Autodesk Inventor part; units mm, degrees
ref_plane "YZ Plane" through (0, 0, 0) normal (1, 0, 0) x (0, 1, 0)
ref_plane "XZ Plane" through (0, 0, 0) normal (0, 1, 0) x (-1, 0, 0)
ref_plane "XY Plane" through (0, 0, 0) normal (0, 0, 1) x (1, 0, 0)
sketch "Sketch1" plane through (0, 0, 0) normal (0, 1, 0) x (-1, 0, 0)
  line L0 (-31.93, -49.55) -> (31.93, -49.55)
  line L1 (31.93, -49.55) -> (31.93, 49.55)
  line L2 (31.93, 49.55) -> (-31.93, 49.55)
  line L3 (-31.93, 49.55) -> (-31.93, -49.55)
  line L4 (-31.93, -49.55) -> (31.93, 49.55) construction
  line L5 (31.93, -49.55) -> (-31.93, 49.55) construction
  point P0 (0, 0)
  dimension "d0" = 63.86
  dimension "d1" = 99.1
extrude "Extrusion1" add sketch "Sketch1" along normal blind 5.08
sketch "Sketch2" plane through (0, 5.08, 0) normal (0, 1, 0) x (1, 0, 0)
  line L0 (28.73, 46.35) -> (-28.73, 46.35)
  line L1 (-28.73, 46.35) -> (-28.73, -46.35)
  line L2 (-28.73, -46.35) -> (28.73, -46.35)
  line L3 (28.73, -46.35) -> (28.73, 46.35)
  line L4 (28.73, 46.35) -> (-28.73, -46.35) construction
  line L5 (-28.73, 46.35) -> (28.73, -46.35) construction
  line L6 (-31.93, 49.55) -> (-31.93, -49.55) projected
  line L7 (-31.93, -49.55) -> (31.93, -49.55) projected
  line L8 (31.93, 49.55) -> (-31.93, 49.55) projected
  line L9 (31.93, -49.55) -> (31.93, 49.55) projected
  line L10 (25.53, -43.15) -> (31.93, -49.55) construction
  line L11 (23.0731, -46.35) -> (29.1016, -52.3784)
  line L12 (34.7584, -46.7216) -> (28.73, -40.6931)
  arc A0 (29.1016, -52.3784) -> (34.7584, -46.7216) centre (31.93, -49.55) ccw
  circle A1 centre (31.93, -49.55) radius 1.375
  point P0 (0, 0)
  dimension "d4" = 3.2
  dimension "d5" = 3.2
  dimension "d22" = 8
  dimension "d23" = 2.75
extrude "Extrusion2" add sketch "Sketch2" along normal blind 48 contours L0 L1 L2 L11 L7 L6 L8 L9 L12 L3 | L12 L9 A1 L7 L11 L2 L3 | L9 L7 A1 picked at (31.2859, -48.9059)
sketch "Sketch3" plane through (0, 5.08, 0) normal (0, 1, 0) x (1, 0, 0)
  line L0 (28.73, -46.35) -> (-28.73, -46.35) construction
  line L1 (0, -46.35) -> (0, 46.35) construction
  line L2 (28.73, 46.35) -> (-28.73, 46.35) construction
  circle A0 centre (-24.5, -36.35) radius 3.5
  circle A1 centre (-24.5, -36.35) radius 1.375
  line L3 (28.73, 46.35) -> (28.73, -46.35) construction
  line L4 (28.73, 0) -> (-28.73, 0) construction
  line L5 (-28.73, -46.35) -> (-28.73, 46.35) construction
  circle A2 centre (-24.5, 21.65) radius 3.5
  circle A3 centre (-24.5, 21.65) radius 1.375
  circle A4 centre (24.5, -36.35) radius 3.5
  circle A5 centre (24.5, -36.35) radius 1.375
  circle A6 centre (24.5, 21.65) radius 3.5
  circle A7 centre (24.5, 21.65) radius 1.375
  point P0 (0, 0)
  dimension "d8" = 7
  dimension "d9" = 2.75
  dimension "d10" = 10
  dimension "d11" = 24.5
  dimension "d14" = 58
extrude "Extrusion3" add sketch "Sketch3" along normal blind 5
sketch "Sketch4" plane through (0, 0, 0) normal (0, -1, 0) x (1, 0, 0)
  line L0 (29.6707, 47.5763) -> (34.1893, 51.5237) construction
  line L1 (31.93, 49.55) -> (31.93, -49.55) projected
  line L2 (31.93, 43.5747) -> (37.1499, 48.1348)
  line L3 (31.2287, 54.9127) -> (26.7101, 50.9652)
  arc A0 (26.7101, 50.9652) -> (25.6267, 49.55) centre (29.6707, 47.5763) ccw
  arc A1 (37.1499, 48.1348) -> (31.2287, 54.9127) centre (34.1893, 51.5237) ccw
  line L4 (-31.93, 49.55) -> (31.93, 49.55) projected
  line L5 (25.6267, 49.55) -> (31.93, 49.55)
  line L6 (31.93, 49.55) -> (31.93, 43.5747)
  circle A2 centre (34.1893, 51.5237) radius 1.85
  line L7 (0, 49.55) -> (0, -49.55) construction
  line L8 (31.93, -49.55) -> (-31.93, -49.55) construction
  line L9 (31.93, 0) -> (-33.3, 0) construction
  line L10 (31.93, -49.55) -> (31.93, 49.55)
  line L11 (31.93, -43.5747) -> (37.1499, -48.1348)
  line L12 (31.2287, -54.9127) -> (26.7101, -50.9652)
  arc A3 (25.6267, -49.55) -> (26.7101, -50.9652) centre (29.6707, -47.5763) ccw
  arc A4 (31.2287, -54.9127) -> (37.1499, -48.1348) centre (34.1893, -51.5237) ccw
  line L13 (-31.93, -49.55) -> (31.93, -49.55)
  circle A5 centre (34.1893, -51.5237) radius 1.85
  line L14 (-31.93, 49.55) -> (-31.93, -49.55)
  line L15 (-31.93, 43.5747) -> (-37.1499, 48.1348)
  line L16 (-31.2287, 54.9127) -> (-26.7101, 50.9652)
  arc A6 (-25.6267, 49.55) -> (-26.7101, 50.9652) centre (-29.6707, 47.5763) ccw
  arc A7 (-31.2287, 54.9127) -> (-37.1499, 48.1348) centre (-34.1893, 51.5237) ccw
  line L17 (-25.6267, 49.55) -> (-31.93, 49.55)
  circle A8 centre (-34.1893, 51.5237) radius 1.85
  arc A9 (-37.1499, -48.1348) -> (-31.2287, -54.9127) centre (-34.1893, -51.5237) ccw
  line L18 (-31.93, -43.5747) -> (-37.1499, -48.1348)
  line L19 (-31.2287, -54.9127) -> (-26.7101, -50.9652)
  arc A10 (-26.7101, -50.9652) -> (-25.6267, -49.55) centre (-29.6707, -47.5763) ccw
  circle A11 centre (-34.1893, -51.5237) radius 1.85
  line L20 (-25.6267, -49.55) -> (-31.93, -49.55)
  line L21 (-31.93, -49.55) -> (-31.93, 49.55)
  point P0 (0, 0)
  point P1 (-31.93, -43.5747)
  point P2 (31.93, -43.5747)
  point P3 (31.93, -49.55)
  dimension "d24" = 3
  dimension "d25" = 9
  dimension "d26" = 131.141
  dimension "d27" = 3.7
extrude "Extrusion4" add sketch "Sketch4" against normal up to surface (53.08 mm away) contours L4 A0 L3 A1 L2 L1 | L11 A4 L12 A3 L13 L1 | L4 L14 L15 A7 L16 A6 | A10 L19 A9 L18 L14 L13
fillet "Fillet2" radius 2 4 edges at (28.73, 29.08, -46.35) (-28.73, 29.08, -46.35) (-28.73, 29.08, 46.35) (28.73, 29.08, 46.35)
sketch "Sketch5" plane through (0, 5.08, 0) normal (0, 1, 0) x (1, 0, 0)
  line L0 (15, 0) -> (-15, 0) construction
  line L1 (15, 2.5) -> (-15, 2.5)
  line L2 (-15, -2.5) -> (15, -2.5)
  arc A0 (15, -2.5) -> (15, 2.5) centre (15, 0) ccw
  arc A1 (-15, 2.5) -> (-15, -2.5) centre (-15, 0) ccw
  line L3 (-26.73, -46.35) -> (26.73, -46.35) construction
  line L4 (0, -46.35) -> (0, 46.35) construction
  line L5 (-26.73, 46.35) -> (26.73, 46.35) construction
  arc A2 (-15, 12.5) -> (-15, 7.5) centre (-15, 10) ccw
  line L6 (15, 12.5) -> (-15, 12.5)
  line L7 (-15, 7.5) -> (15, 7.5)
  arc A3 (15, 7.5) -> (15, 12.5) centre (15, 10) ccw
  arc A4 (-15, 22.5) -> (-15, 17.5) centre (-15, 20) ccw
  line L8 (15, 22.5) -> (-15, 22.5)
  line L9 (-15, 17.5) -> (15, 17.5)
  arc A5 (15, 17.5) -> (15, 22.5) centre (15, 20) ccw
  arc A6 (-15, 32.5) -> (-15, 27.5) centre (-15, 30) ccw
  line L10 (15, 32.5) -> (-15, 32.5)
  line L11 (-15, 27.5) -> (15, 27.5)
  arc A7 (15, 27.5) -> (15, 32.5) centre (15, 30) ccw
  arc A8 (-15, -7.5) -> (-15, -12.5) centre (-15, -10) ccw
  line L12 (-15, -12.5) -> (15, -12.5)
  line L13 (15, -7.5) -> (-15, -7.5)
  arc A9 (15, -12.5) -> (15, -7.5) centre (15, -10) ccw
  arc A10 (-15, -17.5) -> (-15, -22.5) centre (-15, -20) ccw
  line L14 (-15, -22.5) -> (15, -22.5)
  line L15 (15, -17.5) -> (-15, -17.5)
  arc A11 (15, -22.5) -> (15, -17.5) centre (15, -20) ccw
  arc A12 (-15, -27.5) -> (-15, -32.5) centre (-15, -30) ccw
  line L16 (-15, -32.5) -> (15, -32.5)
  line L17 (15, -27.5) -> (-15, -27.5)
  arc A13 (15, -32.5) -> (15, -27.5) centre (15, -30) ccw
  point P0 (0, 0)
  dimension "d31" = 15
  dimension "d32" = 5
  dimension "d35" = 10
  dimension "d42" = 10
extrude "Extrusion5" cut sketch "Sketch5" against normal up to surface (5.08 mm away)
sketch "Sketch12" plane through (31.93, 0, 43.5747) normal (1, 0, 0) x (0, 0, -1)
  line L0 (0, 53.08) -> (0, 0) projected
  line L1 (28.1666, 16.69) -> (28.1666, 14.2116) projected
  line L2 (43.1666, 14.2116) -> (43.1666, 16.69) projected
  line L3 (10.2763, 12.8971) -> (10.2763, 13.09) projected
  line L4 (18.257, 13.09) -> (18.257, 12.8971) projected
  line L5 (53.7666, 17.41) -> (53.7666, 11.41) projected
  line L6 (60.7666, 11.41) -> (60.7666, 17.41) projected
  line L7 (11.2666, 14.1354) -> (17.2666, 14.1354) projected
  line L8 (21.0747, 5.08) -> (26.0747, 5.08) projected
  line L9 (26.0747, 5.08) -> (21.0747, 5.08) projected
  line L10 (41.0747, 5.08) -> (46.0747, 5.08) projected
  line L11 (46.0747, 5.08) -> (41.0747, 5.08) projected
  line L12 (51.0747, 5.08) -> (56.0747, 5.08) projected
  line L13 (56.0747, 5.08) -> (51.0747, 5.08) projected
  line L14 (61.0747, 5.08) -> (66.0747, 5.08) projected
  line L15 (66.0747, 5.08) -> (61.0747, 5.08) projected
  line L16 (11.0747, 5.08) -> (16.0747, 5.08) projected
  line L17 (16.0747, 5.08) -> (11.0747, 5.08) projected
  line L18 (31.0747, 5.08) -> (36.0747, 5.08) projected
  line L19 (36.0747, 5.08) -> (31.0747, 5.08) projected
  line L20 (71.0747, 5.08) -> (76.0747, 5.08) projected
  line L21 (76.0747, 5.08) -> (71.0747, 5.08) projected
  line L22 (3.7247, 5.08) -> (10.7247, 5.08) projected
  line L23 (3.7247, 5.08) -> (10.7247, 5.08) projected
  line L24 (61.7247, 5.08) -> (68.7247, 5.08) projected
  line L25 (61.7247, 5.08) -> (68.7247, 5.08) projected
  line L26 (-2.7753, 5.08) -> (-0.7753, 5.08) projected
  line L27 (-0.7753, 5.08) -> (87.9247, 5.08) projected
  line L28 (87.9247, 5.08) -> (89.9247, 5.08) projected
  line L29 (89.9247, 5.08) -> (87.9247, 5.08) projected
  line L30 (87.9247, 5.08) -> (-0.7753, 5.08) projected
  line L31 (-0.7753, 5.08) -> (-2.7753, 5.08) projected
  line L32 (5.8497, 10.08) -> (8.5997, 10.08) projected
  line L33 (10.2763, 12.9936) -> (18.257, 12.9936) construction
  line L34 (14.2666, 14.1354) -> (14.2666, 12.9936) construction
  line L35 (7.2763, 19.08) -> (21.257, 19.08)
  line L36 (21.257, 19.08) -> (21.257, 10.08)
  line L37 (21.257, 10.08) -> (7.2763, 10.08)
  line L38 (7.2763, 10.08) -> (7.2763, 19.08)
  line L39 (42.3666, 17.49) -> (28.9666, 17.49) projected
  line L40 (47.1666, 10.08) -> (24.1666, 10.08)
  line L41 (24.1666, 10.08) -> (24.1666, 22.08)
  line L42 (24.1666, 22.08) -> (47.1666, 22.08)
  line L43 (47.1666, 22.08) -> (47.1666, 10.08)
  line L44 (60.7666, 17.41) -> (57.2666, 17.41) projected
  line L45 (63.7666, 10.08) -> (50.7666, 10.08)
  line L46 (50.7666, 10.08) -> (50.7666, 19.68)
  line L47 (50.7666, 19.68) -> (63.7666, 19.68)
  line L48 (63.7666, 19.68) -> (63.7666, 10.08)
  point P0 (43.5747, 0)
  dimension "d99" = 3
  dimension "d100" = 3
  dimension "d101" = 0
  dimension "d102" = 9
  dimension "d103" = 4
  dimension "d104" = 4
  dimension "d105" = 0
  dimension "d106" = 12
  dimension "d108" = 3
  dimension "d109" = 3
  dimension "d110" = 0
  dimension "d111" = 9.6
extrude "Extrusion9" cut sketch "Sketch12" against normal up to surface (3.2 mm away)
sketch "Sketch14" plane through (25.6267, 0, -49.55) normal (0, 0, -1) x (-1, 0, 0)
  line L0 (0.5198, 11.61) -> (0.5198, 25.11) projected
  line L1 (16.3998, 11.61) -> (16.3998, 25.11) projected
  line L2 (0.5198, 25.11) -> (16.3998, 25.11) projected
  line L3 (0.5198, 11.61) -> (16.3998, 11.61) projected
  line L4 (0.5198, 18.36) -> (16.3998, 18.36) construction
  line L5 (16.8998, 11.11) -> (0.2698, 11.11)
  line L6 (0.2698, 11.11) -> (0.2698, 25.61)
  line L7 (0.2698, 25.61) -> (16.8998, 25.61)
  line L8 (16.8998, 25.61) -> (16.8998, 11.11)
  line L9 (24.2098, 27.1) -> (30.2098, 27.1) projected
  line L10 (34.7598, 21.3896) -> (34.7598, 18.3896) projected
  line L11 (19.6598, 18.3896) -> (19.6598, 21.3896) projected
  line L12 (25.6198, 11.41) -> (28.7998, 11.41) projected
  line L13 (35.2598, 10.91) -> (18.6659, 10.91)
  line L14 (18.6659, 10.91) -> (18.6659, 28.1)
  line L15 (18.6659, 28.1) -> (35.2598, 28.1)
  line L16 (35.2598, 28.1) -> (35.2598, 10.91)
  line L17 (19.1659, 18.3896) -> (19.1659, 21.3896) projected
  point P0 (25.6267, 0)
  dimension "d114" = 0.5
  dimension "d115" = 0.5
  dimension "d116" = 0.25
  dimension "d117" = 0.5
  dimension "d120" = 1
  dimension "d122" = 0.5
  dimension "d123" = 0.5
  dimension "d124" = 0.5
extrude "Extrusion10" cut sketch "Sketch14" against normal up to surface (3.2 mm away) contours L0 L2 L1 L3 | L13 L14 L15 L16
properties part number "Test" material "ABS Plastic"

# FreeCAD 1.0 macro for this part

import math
import FreeCAD as App
import Part
import Sketcher


def edges_at(feature, points):
    """Names of the edges that pass closest to the given points."""
    edges = feature.Shape.Edges
    near = lambda p: min(range(len(edges)), key=lambda i: edges[i].distToShape(Part.Vertex(*p))[0])
    return sorted({f"Edge{near(p) + 1}" for p in points})

doc = App.newDocument("Part")
params = doc.addObject("Spreadsheet::Sheet", "Params")
for row, (alias, value) in enumerate([
    ("sketch1_height", "99.1 mm"),
    ("sketch1_width", "63.86 mm"),
    ("pad1_length", "5.08 mm"),
    ("sketch2_height", "99.1 mm"),
    ("sketch2_width", "63.86 mm"),
    ("pad2_length", "48 mm"),
    ("sketch3_diameter", "7 mm"),
    ("sketch3_diameter2", "2.75 mm"),
    ("pad3_length", "5 mm"),
    ("sketch4_diameter", "3.7 mm"),
    ("sketch4_diameter2", "3.7 mm"),
    ("sketch4_diameter3", "3.7 mm"),
    ("sketch4_diameter4", "3.7 mm"),
    ("sketch4_radius", "4.5 mm"),
    ("pad4_length", "53.08 mm"),
    ("fillet_radius", "2 mm"),
    ("sketch5_radius", "2.5 mm"),
    ("pocket1_length", "5.08 mm"),
    ("sketch6_width", "9 mm"),
    ("sketch6_width2", "12 mm"),
    ("sketch6_width3", "9.6 mm"),
    ("sketch6_height", "23 mm"),
    ("sketch6_height2", "13 mm"),
    ("pocket2_length", "3.2 mm"),
    ("sketch7_height", "13.5 mm"),
    ("sketch7_width", "15.88 mm"),
    ("sketch7_height2", "17.19 mm"),
    ("pocket3_length", "3.2 mm"),
], start=1):
    params.set(f"A{row}", alias)
    params.set(f"B{row}", "=" + value)
    params.setAlias(f"B{row}", alias)

body = doc.addObject("PartDesign::Body", "Body")

# Sketch on XZ plane
sketch1 = body.newObject("Sketcher::SketchObject", "Sketch")
sketch1.AttachmentSupport = (doc.getObject("XZ_Plane"), [""])
sketch1.MapMode = "FlatFace"
sketch1.addGeometry(Part.LineSegment(App.Vector(32, 50, 0), App.Vector(32, -50, 0)), False)
sketch1.addGeometry(Part.LineSegment(App.Vector(32, -50, 0), App.Vector(-32, -50, 0)), False)
sketch1.addGeometry(Part.LineSegment(App.Vector(-32, -50, 0), App.Vector(-32, 50, 0)), False)
sketch1.addGeometry(Part.LineSegment(App.Vector(-32, 50, 0), App.Vector(32, 50, 0)), False)
sketch1.addConstraint(Sketcher.Constraint("Coincident", 0, 2, 1, 1))
sketch1.addConstraint(Sketcher.Constraint("Coincident", 1, 2, 2, 1))
sketch1.addConstraint(Sketcher.Constraint("Coincident", 2, 2, 3, 1))
sketch1.addConstraint(Sketcher.Constraint("Coincident", 3, 2, 0, 1))
sketch1.addConstraint(Sketcher.Constraint("Vertical", 0))
sketch1.addConstraint(Sketcher.Constraint("Horizontal", 1))
sketch1.addConstraint(Sketcher.Constraint("Vertical", 2))
sketch1.addConstraint(Sketcher.Constraint("Horizontal", 3))
sketch1.addConstraint(Sketcher.Constraint("Symmetric", 0, 2, 2, 2, -1, 1))
sketch1.addConstraint(Sketcher.Constraint("DistanceY", 0, 2, 0, 1, 99.1))
sketch1.addConstraint(Sketcher.Constraint("DistanceX", 1, 2, 1, 1, 63.86))
sketch1.setExpression("Constraints[9]", "Params.sketch1_height")
sketch1.setExpression("Constraints[10]", "Params.sketch1_width")
pad1 = body.newObject("PartDesign::Pad", "Pad")
pad1.Profile = sketch1
pad1.setExpression("Length", "Params.pad1_length")
pad1.Reversed = True

# Sketch on XZ plane
sketch2 = body.newObject("Sketcher::SketchObject", "Sketch001")
sketch2.AttachmentSupport = (doc.getObject("XZ_Plane"), [""])
sketch2.MapMode = "FlatFace"
sketch2.AttachmentOffset = App.Placement(App.Vector(0, 0, -5.08), App.Rotation())
sketch2.addGeometry(Part.LineSegment(App.Vector(-32, 50, 0), App.Vector(32, 50, 0)), False)
sketch2.addGeometry(Part.LineSegment(App.Vector(32, 50, 0), App.Vector(32, -50, 0)), False)
sketch2.addGeometry(Part.LineSegment(App.Vector(32, -50, 0), App.Vector(-32, -50, 0)), False)
sketch2.addGeometry(Part.LineSegment(App.Vector(-32, -50, 0), App.Vector(-32, 50, 0)), False)
sketch2.addGeometry(Part.LineSegment(App.Vector(-29, -46, 0), App.Vector(29, -46, 0)), False)
sketch2.addGeometry(Part.LineSegment(App.Vector(29, -46, 0), App.Vector(29, 46, 0)), False)
sketch2.addGeometry(Part.LineSegment(App.Vector(29, 46, 0), App.Vector(-29, 46, 0)), False)
sketch2.addGeometry(Part.LineSegment(App.Vector(-29, 46, 0), App.Vector(-29, -46, 0)), False)
sketch2.addConstraint(Sketcher.Constraint("Coincident", 0, 2, 1, 1))
sketch2.addConstraint(Sketcher.Constraint("Coincident", 1, 2, 2, 1))
sketch2.addConstraint(Sketcher.Constraint("Coincident", 2, 2, 3, 1))
sketch2.addConstraint(Sketcher.Constraint("Coincident", 3, 2, 0, 1))
sketch2.addConstraint(Sketcher.Constraint("Coincident", 4, 2, 5, 1))
sketch2.addConstraint(Sketcher.Constraint("Coincident", 5, 2, 6, 1))
sketch2.addConstraint(Sketcher.Constraint("Coincident", 6, 2, 7, 1))
sketch2.addConstraint(Sketcher.Constraint("Coincident", 7, 2, 4, 1))
sketch2.addConstraint(Sketcher.Constraint("Horizontal", 0))
sketch2.addConstraint(Sketcher.Constraint("Vertical", 1))
sketch2.addConstraint(Sketcher.Constraint("Horizontal", 2))
sketch2.addConstraint(Sketcher.Constraint("Vertical", 3))
sketch2.addConstraint(Sketcher.Constraint("Horizontal", 4))
sketch2.addConstraint(Sketcher.Constraint("Vertical", 5))
sketch2.addConstraint(Sketcher.Constraint("Horizontal", 6))
sketch2.addConstraint(Sketcher.Constraint("Vertical", 7))
sketch2.addConstraint(Sketcher.Constraint("Symmetric", 0, 2, 2, 2, -1, 1))
sketch2.addConstraint(Sketcher.Constraint("Symmetric", 4, 2, 6, 2, -1, 1))
sketch2.addConstraint(Sketcher.Constraint("DistanceX", 4, 2, 1, 2, 3.2))
sketch2.addConstraint(Sketcher.Constraint("DistanceY", 1, 2, 4, 2, 3.2))
sketch2.addConstraint(Sketcher.Constraint("DistanceY", 1, 2, 1, 1, 99.1))
sketch2.addConstraint(Sketcher.Constraint("DistanceX", 0, 1, 0, 2, 63.86))
sketch2.setExpression("Constraints[20]", "Params.sketch2_height")
sketch2.setExpression("Constraints[21]", "Params.sketch2_width")
pad2 = body.newObject("PartDesign::Pad", "Pad001")
pad2.Profile = sketch2
pad2.setExpression("Length", "Params.pad2_length")
pad2.Reversed = True

# Sketch on XZ plane
sketch3 = body.newObject("Sketcher::SketchObject", "Sketch002")
sketch3.AttachmentSupport = (doc.getObject("XZ_Plane"), [""])
sketch3.MapMode = "FlatFace"
sketch3.AttachmentOffset = App.Placement(App.Vector(0, 0, -5.08), App.Rotation())
sketch3.addGeometry(Part.Circle(App.Vector(-24.5, 36.4, 0), App.Vector(0, 0, 1), 3.5), False)
sketch3.addGeometry(Part.Circle(App.Vector(-24.5, 36.4, 0), App.Vector(0, 0, 1), 1.4), False)
sketch3.addGeometry(Part.Circle(App.Vector(-24.5, -21.6, 0), App.Vector(0, 0, 1), 3.5), False)
sketch3.addGeometry(Part.Circle(App.Vector(-24.5, -21.6, 0), App.Vector(0, 0, 1), 1.4), False)
sketch3.addGeometry(Part.Circle(App.Vector(24.5, 36.4, 0), App.Vector(0, 0, 1), 3.5), False)
sketch3.addGeometry(Part.Circle(App.Vector(24.5, 36.4, 0), App.Vector(0, 0, 1), 1.4), False)
sketch3.addGeometry(Part.Circle(App.Vector(24.5, -21.6, 0), App.Vector(0, 0, 1), 3.5), False)
sketch3.addGeometry(Part.Circle(App.Vector(24.5, -21.6, 0), App.Vector(0, 0, 1), 1.4), False)
sketch3.addConstraint(Sketcher.Constraint("Coincident", 1, 3, 0, 3))
sketch3.addConstraint(Sketcher.Constraint("Coincident", 3, 3, 2, 3))
sketch3.addConstraint(Sketcher.Constraint("Coincident", 5, 3, 4, 3))
sketch3.addConstraint(Sketcher.Constraint("Coincident", 7, 3, 6, 3))
sketch3.addConstraint(Sketcher.Constraint("Equal", 0, 2))
sketch3.addConstraint(Sketcher.Constraint("Equal", 1, 3))
sketch3.addConstraint(Sketcher.Constraint("Equal", 2, 4))
sketch3.addConstraint(Sketcher.Constraint("Equal", 3, 5))
sketch3.addConstraint(Sketcher.Constraint("Equal", 4, 6))
sketch3.addConstraint(Sketcher.Constraint("Equal", 5, 7))
sketch3.addConstraint(Sketcher.Constraint("Symmetric", 0, 3, 4, 3, -2))
sketch3.addConstraint(Sketcher.Constraint("Symmetric", 2, 3, 6, 3, -2))
sketch3.addConstraint(Sketcher.Constraint("Vertical", 1, 3, 2, 3))
sketch3.addConstraint(Sketcher.Constraint("Diameter", 0, 7.0))
sketch3.addConstraint(Sketcher.Constraint("Diameter", 1, 2.75))
sketch3.addConstraint(Sketcher.Constraint("DistanceY", 2, 3, 0, 3, 58.0))
sketch3.addConstraint(Sketcher.Constraint("DistanceX", 0, 3, -1, 1, 24.5))
sketch3.addConstraint(Sketcher.Constraint("DistanceY", -1, 1, 0, 3, 36.35))
sketch3.setExpression("Constraints[13]", "Params.sketch3_diameter")
sketch3.setExpression("Constraints[14]", "Params.sketch3_diameter2")
pad3 = body.newObject("PartDesign::Pad", "Pad002")
pad3.Profile = sketch3
pad3.setExpression("Length", "Params.pad3_length")
pad3.Reversed = True

# Sketch on XZ plane
sketch4 = body.newObject("Sketcher::SketchObject", "Sketch003")
sketch4.AttachmentSupport = (doc.getObject("XZ_Plane"), [""])
sketch4.MapMode = "FlatFace"
sketch4.addGeometry(Part.LineSegment(App.Vector(25.6267, 49.55, 0), App.Vector(31.93, 49.55, 0)), False)
sketch4.addGeometry(Part.LineSegment(App.Vector(31.93, 49.55, 0), App.Vector(31.93, 43.5747, 0)), False)
sketch4.addGeometry(Part.LineSegment(App.Vector(31.93, 43.5747, 0), App.Vector(37.1499, 48.1348, 0)), False)
sketch4.addGeometry(Part.ArcOfCircle(Part.Circle(App.Vector(34.1893, 51.5237, 0), App.Vector(0, 0, 1), 4.499977), math.radians(-48.858991), math.radians(131.140171)), False)
sketch4.addGeometry(Part.LineSegment(App.Vector(31.2287, 54.9127, 0), App.Vector(26.7101, 50.9652, 0)), False)
sketch4.addGeometry(Part.ArcOfCircle(Part.Circle(App.Vector(29.669943, 47.577009, 0), App.Vector(0, 0, 1), 4.498946), math.radians(131.139695), math.radians(153.988905)), False)
sketch4.addGeometry(Part.Circle(App.Vector(34.1893, 51.5237, 0), App.Vector(0, 0, 1), 1.85), False)
sketch4.addGeometry(Part.LineSegment(App.Vector(37.1499, -48.1348, 0), App.Vector(31.93, -43.5747, 0)), False)
sketch4.addGeometry(Part.LineSegment(App.Vector(31.93, -43.5747, 0), App.Vector(31.93, -49.55, 0)), False)
sketch4.addGeometry(Part.LineSegment(App.Vector(31.93, -49.55, 0), App.Vector(25.6267, -49.55, 0)), False)
sketch4.addGeometry(Part.ArcOfCircle(Part.Circle(App.Vector(29.671582, -47.575755, 0), App.Vector(0, 0, 1), 4.500969), math.radians(-153.983701), math.radians(-131.144899)), False)
sketch4.addGeometry(Part.LineSegment(App.Vector(26.7101, -50.9652, 0), App.Vector(31.2287, -54.9127, 0)), False)
sketch4.addGeometry(Part.ArcOfCircle(Part.Circle(App.Vector(34.1893, -51.5237, 0), App.Vector(0, 0, 1), 4.500053), math.radians(-131.140171), math.radians(48.858991)), False)
sketch4.addGeometry(Part.Circle(App.Vector(34.1893, -51.5237, 0), App.Vector(0, 0, 1), 1.85), False)
sketch4.addGeometry(Part.LineSegment(App.Vector(-31.93, 49.55, 0), App.Vector(-25.6267, 49.55, 0)), False)
sketch4.addGeometry(Part.ArcOfCircle(Part.Circle(App.Vector(-29.671582, 47.575755, 0), App.Vector(0, 0, 1), 4.500969), math.radians(26.016299), math.radians(48.855101)), False)
sketch4.addGeometry(Part.LineSegment(App.Vector(-26.7101, 50.9652, 0), App.Vector(-31.2287, 54.9127, 0)), False)
sketch4.addGeometry(Part.ArcOfCircle(Part.Circle(App.Vector(-34.1893, 51.5237, 0), App.Vector(0, 0, 1), 4.500053), math.radians(48.859829), math.radians(228.858991)), False)
sketch4.addGeometry(Part.LineSegment(App.Vector(-37.1499, 48.1348, 0), App.Vector(-31.93, 43.5747, 0)), False)
sketch4.addGeometry(Part.LineSegment(App.Vector(-31.93, 43.5747, 0), App.Vector(-31.93, 49.55, 0)), False)
sketch4.addGeometry(Part.Circle(App.Vector(-34.1893, 51.5237, 0), App.Vector(0, 0, 1), 1.85), False)
sketch4.addGeometry(Part.ArcOfCircle(Part.Circle(App.Vector(-29.669943, -47.577009, 0), App.Vector(0, 0, 1), 4.498946), math.radians(-48.860305), math.radians(-26.011095)), False)
sketch4.addGeometry(Part.LineSegment(App.Vector(-25.6267, -49.55, 0), App.Vector(-31.93, -49.55, 0)), False)
sketch4.addGeometry(Part.LineSegment(App.Vector(-31.93, -49.55, 0), App.Vector(-31.93, -43.5747, 0)), False)
sketch4.addGeometry(Part.LineSegment(App.Vector(-31.93, -43.5747, 0), App.Vector(-37.1499, -48.1348, 0)), False)
sketch4.addGeometry(Part.ArcOfCircle(Part.Circle(App.Vector(-34.1893, -51.5237, 0), App.Vector(0, 0, 1), 4.499977), math.radians(131.141009), math.radians(311.140171)), False)
sketch4.addGeometry(Part.LineSegment(App.Vector(-31.2287, -54.9127, 0), App.Vector(-26.7101, -50.9652, 0)), False)
sketch4.addGeometry(Part.Circle(App.Vector(-34.1893, -51.5237, 0), App.Vector(0, 0, 1), 1.85), False)
sketch4.addConstraint(Sketcher.Constraint("Coincident", 0, 2, 1, 1))
sketch4.addConstraint(Sketcher.Constraint("Coincident", 1, 2, 2, 1))
sketch4.addConstraint(Sketcher.Constraint("Coincident", 2, 2, 3, 1))
sketch4.addConstraint(Sketcher.Constraint("Coincident", 3, 2, 4, 1))
sketch4.addConstraint(Sketcher.Constraint("Coincident", 4, 2, 5, 1))
sketch4.addConstraint(Sketcher.Constraint("Coincident", 5, 2, 0, 1))
sketch4.addConstraint(Sketcher.Constraint("Coincident", 7, 2, 8, 1))
sketch4.addConstraint(Sketcher.Constraint("Coincident", 8, 2, 9, 1))
sketch4.addConstraint(Sketcher.Constraint("Coincident", 9, 2, 10, 1))
sketch4.addConstraint(Sketcher.Constraint("Coincident", 10, 2, 11, 1))
sketch4.addConstraint(Sketcher.Constraint("Coincident", 11, 2, 12, 1))
sketch4.addConstraint(Sketcher.Constraint("Coincident", 12, 2, 7, 1))
sketch4.addConstraint(Sketcher.Constraint("Coincident", 14, 2, 15, 1))
sketch4.addConstraint(Sketcher.Constraint("Coincident", 15, 2, 16, 1))
sketch4.addConstraint(Sketcher.Constraint("Coincident", 16, 2, 17, 1))
sketch4.addConstraint(Sketcher.Constraint("Coincident", 17, 2, 18, 1))
sketch4.addConstraint(Sketcher.Constraint("Coincident", 18, 2, 19, 1))
sketch4.addConstraint(Sketcher.Constraint("Coincident", 19, 2, 14, 1))
sketch4.addConstraint(Sketcher.Constraint("Coincident", 21, 2, 22, 1))
sketch4.addConstraint(Sketcher.Constraint("Coincident", 22, 2, 23, 1))
sketch4.addConstraint(Sketcher.Constraint("Coincident", 23, 2, 24, 1))
sketch4.addConstraint(Sketcher.Constraint("Coincident", 24, 2, 25, 1))
sketch4.addConstraint(Sketcher.Constraint("Coincident", 25, 2, 26, 1))
sketch4.addConstraint(Sketcher.Constraint("Coincident", 26, 2, 21, 1))
sketch4.addConstraint(Sketcher.Constraint("Horizontal", 0))
sketch4.addConstraint(Sketcher.Constraint("Vertical", 1))
sketch4.addConstraint(Sketcher.Constraint("Vertical", 8))
sketch4.addConstraint(Sketcher.Constraint("Horizontal", 9))
sketch4.addConstraint(Sketcher.Constraint("Horizontal", 14))
sketch4.addConstraint(Sketcher.Constraint("Vertical", 19))
sketch4.addConstraint(Sketcher.Constraint("Horizontal", 22))
sketch4.addConstraint(Sketcher.Constraint("Vertical", 23))
sketch4.addConstraint(Sketcher.Constraint("Coincident", 6, 3, 3, 3))
sketch4.addConstraint(Sketcher.Constraint("Coincident", 13, 3, 12, 3))
sketch4.addConstraint(Sketcher.Constraint("Coincident", 20, 3, 17, 3))
sketch4.addConstraint(Sketcher.Constraint("Coincident", 27, 3, 25, 3))
sketch4.addConstraint(Sketcher.Constraint("Diameter", 6, 3.7))
sketch4.addConstraint(Sketcher.Constraint("Diameter", 13, 3.7))
sketch4.addConstraint(Sketcher.Constraint("Diameter", 20, 3.7))
sketch4.addConstraint(Sketcher.Constraint("Diameter", 27, 3.7))
sketch4.addConstraint(Sketcher.Constraint("Radius", 3, 4.5))
sketch4.addConstraint(Sketcher.Constraint("Radius", 12, 4.5))
sketch4.addConstraint(Sketcher.Constraint("Radius", 17, 4.5))
sketch4.addConstraint(Sketcher.Constraint("Radius", 25, 4.5))
sketch4.addConstraint(Sketcher.Constraint("Distance", 4, 6.0))
sketch4.addConstraint(Sketcher.Constraint("Distance", 11, 6.0))
sketch4.addConstraint(Sketcher.Constraint("Distance", 16, 6.0))
sketch4.addConstraint(Sketcher.Constraint("Distance", 26, 6.0))
sketch4.addConstraint(Sketcher.Constraint("Radius", 5, 4.499))
sketch4.addConstraint(Sketcher.Constraint("Radius", 10, 4.501))
sketch4.addConstraint(Sketcher.Constraint("Radius", 15, 4.501))
sketch4.addConstraint(Sketcher.Constraint("Radius", 21, 4.499))
sketch4.addConstraint(Sketcher.Constraint("DistanceX", 21, 3, 7, 2, 61.6))
sketch4.addConstraint(Sketcher.Constraint("DistanceX", -1, 1, 5, 3, 29.67))
sketch4.addConstraint(Sketcher.Constraint("DistanceX", 21, 3, -1, 1, 29.67))
sketch4.addConstraint(Sketcher.Constraint("DistanceX", -1, 1, 0, 2, 31.93))
sketch4.addConstraint(Sketcher.Constraint("DistanceY", -1, 1, 0, 2, 49.55))
sketch4.addConstraint(Sketcher.Constraint("DistanceX", -1, 1, 2, 2, 37.15))
sketch4.addConstraint(Sketcher.Constraint("DistanceX", -1, 1, 4, 2, 26.71))
sketch4.addConstraint(Sketcher.Constraint("DistanceY", 8, 2, -1, 1, 49.55))
sketch4.addConstraint(Sketcher.Constraint("DistanceX", -1, 1, 10, 2, 26.71))
sketch4.addConstraint(Sketcher.Constraint("DistanceX", -1, 1, 12, 2, 37.15))
sketch4.addConstraint(Sketcher.Constraint("DistanceY", -1, 1, 14, 2, 49.55))
sketch4.addConstraint(Sketcher.Constraint("DistanceX", 15, 2, -1, 1, 26.71))
sketch4.addConstraint(Sketcher.Constraint("DistanceX", 17, 2, -1, 1, 37.15))
sketch4.addConstraint(Sketcher.Constraint("DistanceX", 18, 2, -1, 1, 31.93))
sketch4.addConstraint(Sketcher.Constraint("DistanceY", 21, 2, -1, 1, 49.55))
sketch4.addConstraint(Sketcher.Constraint("DistanceX", 22, 2, -1, 1, 31.93))
sketch4.addConstraint(Sketcher.Constraint("DistanceX", 24, 2, -1, 1, 37.15))
sketch4.addConstraint(Sketcher.Constraint("DistanceX", 26, 2, -1, 1, 26.71))
sketch4.addConstraint(Sketcher.Constraint("DistanceY", 1, 2, 2, 2, 4.56))
sketch4.addConstraint(Sketcher.Constraint("DistanceY", 12, 2, 7, 2, 4.56))
sketch4.addConstraint(Sketcher.Constraint("DistanceY", 18, 2, 17, 2, 4.56))
sketch4.addConstraint(Sketcher.Constraint("DistanceY", 24, 2, 23, 2, 4.56))
sketch4.addConstraint(Sketcher.Constraint("DistanceX", 0, 1, 0, 2, 6.3033))
sketch4.addConstraint(Sketcher.Constraint("DistanceX", 9, 2, 9, 1, 6.3033))
sketch4.addConstraint(Sketcher.Constraint("DistanceX", 14, 1, 14, 2, 6.3033))
sketch4.addConstraint(Sketcher.Constraint("DistanceX", 22, 2, 22, 1, 6.3033))
sketch4.addConstraint(Sketcher.Constraint("DistanceY", 1, 2, 1, 1, 5.9753))
sketch4.addConstraint(Sketcher.Constraint("DistanceY", 8, 2, 8, 1, 5.9753))
sketch4.addConstraint(Sketcher.Constraint("DistanceY", 19, 1, 19, 2, 5.9753))
sketch4.addConstraint(Sketcher.Constraint("DistanceY", 23, 1, 23, 2, 5.9753))
sketch4.addConstraint(Sketcher.Constraint("DistanceY", 12, 3, 10, 3, 3.948))
sketch4.addConstraint(Sketcher.Constraint("DistanceX", 15, 3, 3, 3, 63.861))
sketch4.addConstraint(Sketcher.Constraint("DistanceY", 15, 3, 3, 3, 3.948))
sketch4.addConstraint(Sketcher.Constraint("DistanceX", 15, 3, 12, 3, 63.861))
sketch4.addConstraint(Sketcher.Constraint("DistanceY", 15, 3, 17, 3, 3.948))
sketch4.addConstraint(Sketcher.Constraint("DistanceX", 25, 3, 10, 3, 63.861))
sketch4.setExpression("Constraints[36]", "Params.sketch4_diameter")
sketch4.setExpression("Constraints[37]", "Params.sketch4_diameter2")
sketch4.setExpression("Constraints[38]", "Params.sketch4_diameter3")
sketch4.setExpression("Constraints[39]", "Params.sketch4_diameter4")
sketch4.setExpression("Constraints[40]", "Params.sketch4_radius")
pad4 = body.newObject("PartDesign::Pad", "Pad003")
pad4.Profile = sketch4
pad4.setExpression("Length", "Params.pad4_length")
pad4.Reversed = True
doc.recompute()

fillet = body.newObject("PartDesign::Fillet", "Fillet")
fillet.Base = (pad4, edges_at(pad4, [
    (28.73, 29.08, -46.35),
    (-28.73, 29.08, -46.35),
    (-28.73, 29.08, 46.35),
    (28.73, 29.08, 46.35),
]))
fillet.setExpression("Radius", "Params.fillet_radius")

# Sketch on XZ plane
sketch5 = body.newObject("Sketcher::SketchObject", "Sketch004")
sketch5.AttachmentSupport = (doc.getObject("XZ_Plane"), [""])
sketch5.MapMode = "FlatFace"
sketch5.AttachmentOffset = App.Placement(App.Vector(0, 0, -5.08), App.Rotation())
sketch5.addGeometry(Part.ArcOfCircle(Part.Circle(App.Vector(15, 0, 0), App.Vector(0, 0, 1), 2.5), math.radians(-90), math.radians(90)), False)
sketch5.addGeometry(Part.LineSegment(App.Vector(15, -2.5, 0), App.Vector(-15, -2.5, 0)), False)
sketch5.addGeometry(Part.ArcOfCircle(Part.Circle(App.Vector(-15, 0, 0), App.Vector(0, 0, 1), 2.5), math.radians(90), math.radians(270)), False)
sketch5.addGeometry(Part.LineSegment(App.Vector(-15, 2.5, 0), App.Vector(15, 2.5, 0)), False)
sketch5.addGeometry(Part.LineSegment(App.Vector(15, -12.5, 0), App.Vector(-15, -12.5, 0)), False)
sketch5.addGeometry(Part.ArcOfCircle(Part.Circle(App.Vector(-15, -10, 0), App.Vector(0, 0, 1), 2.5), math.radians(90), math.radians(270)), False)
sketch5.addGeometry(Part.LineSegment(App.Vector(-15, -7.5, 0), App.Vector(15, -7.5, 0)), False)
sketch5.addGeometry(Part.ArcOfCircle(Part.Circle(App.Vector(15, -10, 0), App.Vector(0, 0, 1), 2.5), math.radians(-90), math.radians(90)), False)
sketch5.addGeometry(Part.LineSegment(App.Vector(15, -22.5, 0), App.Vector(-15, -22.5, 0)), False)
sketch5.addGeometry(Part.ArcOfCircle(Part.Circle(App.Vector(-15, -20, 0), App.Vector(0, 0, 1), 2.5), math.radians(90), math.radians(270)), False)
sketch5.addGeometry(Part.LineSegment(App.Vector(-15, -17.5, 0), App.Vector(15, -17.5, 0)), False)
sketch5.addGeometry(Part.ArcOfCircle(Part.Circle(App.Vector(15, -20, 0), App.Vector(0, 0, 1), 2.5), math.radians(-90), math.radians(90)), False)
sketch5.addGeometry(Part.LineSegment(App.Vector(15, -32.5, 0), App.Vector(-15, -32.5, 0)), False)
sketch5.addGeometry(Part.ArcOfCircle(Part.Circle(App.Vector(-15, -30, 0), App.Vector(0, 0, 1), 2.5), math.radians(90), math.radians(270)), False)
sketch5.addGeometry(Part.LineSegment(App.Vector(-15, -27.5, 0), App.Vector(15, -27.5, 0)), False)
sketch5.addGeometry(Part.ArcOfCircle(Part.Circle(App.Vector(15, -30, 0), App.Vector(0, 0, 1), 2.5), math.radians(-90), math.radians(90)), False)
sketch5.addGeometry(Part.LineSegment(App.Vector(15, 7.5, 0), App.Vector(-15, 7.5, 0)), False)
sketch5.addGeometry(Part.ArcOfCircle(Part.Circle(App.Vector(-15, 10, 0), App.Vector(0, 0, 1), 2.5), math.radians(90), math.radians(270)), False)
sketch5.addGeometry(Part.LineSegment(App.Vector(-15, 12.5, 0), App.Vector(15, 12.5, 0)), False)
sketch5.addGeometry(Part.ArcOfCircle(Part.Circle(App.Vector(15, 10, 0), App.Vector(0, 0, 1), 2.5), math.radians(-90), math.radians(90)), False)
sketch5.addGeometry(Part.LineSegment(App.Vector(15, 17.5, 0), App.Vector(-15, 17.5, 0)), False)
sketch5.addGeometry(Part.ArcOfCircle(Part.Circle(App.Vector(-15, 20, 0), App.Vector(0, 0, 1), 2.5), math.radians(90), math.radians(270)), False)
sketch5.addGeometry(Part.LineSegment(App.Vector(-15, 22.5, 0), App.Vector(15, 22.5, 0)), False)
sketch5.addGeometry(Part.ArcOfCircle(Part.Circle(App.Vector(15, 20, 0), App.Vector(0, 0, 1), 2.5), math.radians(-90), math.radians(90)), False)
sketch5.addGeometry(Part.LineSegment(App.Vector(15, 27.5, 0), App.Vector(-15, 27.5, 0)), False)
sketch5.addGeometry(Part.ArcOfCircle(Part.Circle(App.Vector(-15, 30, 0), App.Vector(0, 0, 1), 2.5), math.radians(90), math.radians(270)), False)
sketch5.addGeometry(Part.LineSegment(App.Vector(-15, 32.5, 0), App.Vector(15, 32.5, 0)), False)
sketch5.addGeometry(Part.ArcOfCircle(Part.Circle(App.Vector(15, 30, 0), App.Vector(0, 0, 1), 2.5), math.radians(-90), math.radians(90)), False)
sketch5.addConstraint(Sketcher.Constraint("Tangent", 0, 1, 1, 1))
sketch5.addConstraint(Sketcher.Constraint("Tangent", 1, 2, 2, 2))
sketch5.addConstraint(Sketcher.Constraint("Tangent", 2, 1, 3, 1))
sketch5.addConstraint(Sketcher.Constraint("Tangent", 3, 2, 0, 2))
sketch5.addConstraint(Sketcher.Constraint("Tangent", 4, 2, 5, 2))
sketch5.addConstraint(Sketcher.Constraint("Tangent", 5, 1, 6, 1))
sketch5.addConstraint(Sketcher.Constraint("Tangent", 6, 2, 7, 2))
sketch5.addConstraint(Sketcher.Constraint("Tangent", 7, 1, 4, 1))
sketch5.addConstraint(Sketcher.Constraint("Tangent", 8, 2, 9, 2))
sketch5.addConstraint(Sketcher.Constraint("Tangent", 9, 1, 10, 1))
sketch5.addConstraint(Sketcher.Constraint("Tangent", 10, 2, 11, 2))
sketch5.addConstraint(Sketcher.Constraint("Tangent", 11, 1, 8, 1))
sketch5.addConstraint(Sketcher.Constraint("Tangent", 12, 2, 13, 2))
sketch5.addConstraint(Sketcher.Constraint("Tangent", 13, 1, 14, 1))
sketch5.addConstraint(Sketcher.Constraint("Tangent", 14, 2, 15, 2))
sketch5.addConstraint(Sketcher.Constraint("Tangent", 15, 1, 12, 1))
sketch5.addConstraint(Sketcher.Constraint("Tangent", 16, 2, 17, 2))
sketch5.addConstraint(Sketcher.Constraint("Tangent", 17, 1, 18, 1))
sketch5.addConstraint(Sketcher.Constraint("Tangent", 18, 2, 19, 2))
sketch5.addConstraint(Sketcher.Constraint("Tangent", 19, 1, 16, 1))
sketch5.addConstraint(Sketcher.Constraint("Tangent", 20, 2, 21, 2))
sketch5.addConstraint(Sketcher.Constraint("Tangent", 21, 1, 22, 1))
sketch5.addConstraint(Sketcher.Constraint("Tangent", 22, 2, 23, 2))
sketch5.addConstraint(Sketcher.Constraint("Tangent", 23, 1, 20, 1))
sketch5.addConstraint(Sketcher.Constraint("Tangent", 24, 2, 25, 2))
sketch5.addConstraint(Sketcher.Constraint("Tangent", 25, 1, 26, 1))
sketch5.addConstraint(Sketcher.Constraint("Tangent", 26, 2, 27, 2))
sketch5.addConstraint(Sketcher.Constraint("Tangent", 27, 1, 24, 1))
sketch5.addConstraint(Sketcher.Constraint("Horizontal", 1))
sketch5.addConstraint(Sketcher.Constraint("Horizontal", 3))
sketch5.addConstraint(Sketcher.Constraint("Horizontal", 4))
sketch5.addConstraint(Sketcher.Constraint("Horizontal", 6))
sketch5.addConstraint(Sketcher.Constraint("Horizontal", 8))
sketch5.addConstraint(Sketcher.Constraint("Horizontal", 10))
sketch5.addConstraint(Sketcher.Constraint("Horizontal", 12))
sketch5.addConstraint(Sketcher.Constraint("Horizontal", 14))
sketch5.addConstraint(Sketcher.Constraint("Horizontal", 16))
sketch5.addConstraint(Sketcher.Constraint("Horizontal", 18))
sketch5.addConstraint(Sketcher.Constraint("Horizontal", 20))
sketch5.addConstraint(Sketcher.Constraint("Horizontal", 22))
sketch5.addConstraint(Sketcher.Constraint("Horizontal", 24))
sketch5.addConstraint(Sketcher.Constraint("Horizontal", 26))
sketch5.addConstraint(Sketcher.Constraint("Equal", 2, 5))
sketch5.addConstraint(Sketcher.Constraint("Equal", 7, 9))
sketch5.addConstraint(Sketcher.Constraint("Equal", 11, 13))
sketch5.addConstraint(Sketcher.Constraint("Equal", 15, 17))
sketch5.addConstraint(Sketcher.Constraint("Equal", 19, 21))
sketch5.addConstraint(Sketcher.Constraint("Equal", 23, 25))
sketch5.addConstraint(Sketcher.Constraint("Symmetric", 0, 3, 2, 3, -1, 1))
sketch5.addConstraint(Sketcher.Constraint("Symmetric", 7, 3, 17, 3, -1, 1))
sketch5.addConstraint(Sketcher.Constraint("Symmetric", 11, 3, 21, 3, -1, 1))
sketch5.addConstraint(Sketcher.Constraint("Symmetric", 15, 3, 25, 3, -1, 1))
sketch5.addConstraint(Sketcher.Constraint("Vertical", 2, 3, 5, 3))
sketch5.addConstraint(Sketcher.Constraint("Vertical", 0, 3, 7, 3))
sketch5.addConstraint(Sketcher.Constraint("Vertical", 5, 3, 9, 3))
sketch5.addConstraint(Sketcher.Constraint("Vertical", 7, 3, 11, 3))
sketch5.addConstraint(Sketcher.Constraint("Vertical", 9, 3, 13, 3))
sketch5.addConstraint(Sketcher.Constraint("Vertical", 11, 3, 15, 3))
sketch5.addConstraint(Sketcher.Constraint("Vertical", 15, 3, 19, 3))
sketch5.addConstraint(Sketcher.Constraint("Vertical", 19, 3, 23, 3))
sketch5.addConstraint(Sketcher.Constraint("Vertical", 23, 3, 27, 3))
sketch5.addConstraint(Sketcher.Constraint("Radius", 0, 2.5))
sketch5.addConstraint(Sketcher.Constraint("DistanceX", -1, 1, 0, 3, 15.0))
sketch5.addConstraint(Sketcher.Constraint("DistanceY", 5, 3, -1, 1, 10.0))
sketch5.addConstraint(Sketcher.Constraint("DistanceY", 9, 3, 5, 3, 10.0))
sketch5.addConstraint(Sketcher.Constraint("DistanceY", 13, 3, 9, 3, 10.0))
sketch5.setExpression("Constraints[61]", "Params.sketch5_radius")
pocket1 = body.newObject("PartDesign::Pocket", "Pocket")
pocket1.Profile = sketch5
pocket1.setExpression("Length", "Params.pocket1_length")
pocket1.Reversed = True

# Sketch on YZ plane
sketch6 = body.newObject("Sketcher::SketchObject", "Sketch005")
sketch6.AttachmentSupport = (doc.getObject("YZ_Plane"), [""])
sketch6.MapMode = "FlatFace"
sketch6.AttachmentOffset = App.Placement(App.Vector(0, 0, 31.93), App.Rotation())
sketch6.addGeometry(Part.LineSegment(App.Vector(19, 36, 0), App.Vector(10, 36, 0)), False)
sketch6.addGeometry(Part.LineSegment(App.Vector(10, 36, 0), App.Vector(10, 22, 0)), False)
sketch6.addGeometry(Part.LineSegment(App.Vector(10, 22, 0), App.Vector(19, 22, 0)), False)
sketch6.addGeometry(Part.LineSegment(App.Vector(19, 22, 0), App.Vector(19, 36, 0)), False)
sketch6.addGeometry(Part.LineSegment(App.Vector(10, 19, 0), App.Vector(10, -4, 0)), False)
sketch6.addGeometry(Part.LineSegment(App.Vector(10, -4, 0), App.Vector(22, -4, 0)), False)
sketch6.addGeometry(Part.LineSegment(App.Vector(22, -4, 0), App.Vector(22, 19, 0)), False)
sketch6.addGeometry(Part.LineSegment(App.Vector(22, 19, 0), App.Vector(10, 19, 0)), False)
sketch6.addGeometry(Part.LineSegment(App.Vector(10, -7, 0), App.Vector(10, -20, 0)), False)
sketch6.addGeometry(Part.LineSegment(App.Vector(10, -20, 0), App.Vector(20, -20, 0)), False)
sketch6.addGeometry(Part.LineSegment(App.Vector(20, -20, 0), App.Vector(20, -7, 0)), False)
sketch6.addGeometry(Part.LineSegment(App.Vector(20, -7, 0), App.Vector(10, -7, 0)), False)
sketch6.addConstraint(Sketcher.Constraint("Coincident", 0, 2, 1, 1))
sketch6.addConstraint(Sketcher.Constraint("Coincident", 1, 2, 2, 1))
sketch6.addConstraint(Sketcher.Constraint("Coincident", 2, 2, 3, 1))
sketch6.addConstraint(Sketcher.Constraint("Coincident", 3, 2, 0, 1))
sketch6.addConstraint(Sketcher.Constraint("Coincident", 4, 2, 5, 1))
sketch6.addConstraint(Sketcher.Constraint("Coincident", 5, 2, 6, 1))
sketch6.addConstraint(Sketcher.Constraint("Coincident", 6, 2, 7, 1))
sketch6.addConstraint(Sketcher.Constraint("Coincident", 7, 2, 4, 1))
sketch6.addConstraint(Sketcher.Constraint("Coincident", 8, 2, 9, 1))
sketch6.addConstraint(Sketcher.Constraint("Coincident", 9, 2, 10, 1))
sketch6.addConstraint(Sketcher.Constraint("Coincident", 10, 2, 11, 1))
sketch6.addConstraint(Sketcher.Constraint("Coincident", 11, 2, 8, 1))
sketch6.addConstraint(Sketcher.Constraint("Horizontal", 0))
sketch6.addConstraint(Sketcher.Constraint("Vertical", 1))
sketch6.addConstraint(Sketcher.Constraint("Horizontal", 2))
sketch6.addConstraint(Sketcher.Constraint("Vertical", 3))
sketch6.addConstraint(Sketcher.Constraint("Vertical", 4))
sketch6.addConstraint(Sketcher.Constraint("Horizontal", 5))
sketch6.addConstraint(Sketcher.Constraint("Vertical", 6))
sketch6.addConstraint(Sketcher.Constraint("Horizontal", 7))
sketch6.addConstraint(Sketcher.Constraint("Vertical", 8))
sketch6.addConstraint(Sketcher.Constraint("Horizontal", 9))
sketch6.addConstraint(Sketcher.Constraint("Vertical", 10))
sketch6.addConstraint(Sketcher.Constraint("Horizontal", 11))
sketch6.addConstraint(Sketcher.Constraint("Vertical", 1, 2, 4, 2))
sketch6.addConstraint(Sketcher.Constraint("Vertical", 7, 2, 8, 2))
sketch6.addConstraint(Sketcher.Constraint("DistanceX", 0, 2, 0, 1, 9.0))
sketch6.addConstraint(Sketcher.Constraint("DistanceX", 5, 1, 5, 2, 12.0))
sketch6.addConstraint(Sketcher.Constraint("DistanceX", 9, 1, 9, 2, 9.6))
sketch6.addConstraint(Sketcher.Constraint("DistanceY", 4, 2, 4, 1, 23.0))
sketch6.addConstraint(Sketcher.Constraint("DistanceY", 8, 2, 8, 1, 13.0))
sketch6.addConstraint(Sketcher.Constraint("DistanceY", 8, 2, 4, 2, 16.6))
sketch6.addConstraint(Sketcher.Constraint("DistanceX", -1, 1, 0, 2, 10.08))
sketch6.addConstraint(Sketcher.Constraint("DistanceY", 1, 2, 1, 1, 13.9807))
sketch6.addConstraint(Sketcher.Constraint("DistanceY", 4, 2, -1, 1, 3.592))
sketch6.addConstraint(Sketcher.Constraint("DistanceY", -1, 1, 0, 2, 36.2984))
sketch6.setExpression("Constraints[26]", "Params.sketch6_width")
sketch6.setExpression("Constraints[27]", "Params.sketch6_width2")
sketch6.setExpression("Constraints[28]", "Params.sketch6_width3")
sketch6.setExpression("Constraints[29]", "Params.sketch6_height")
sketch6.setExpression("Constraints[30]", "Params.sketch6_height2")
pocket2 = body.newObject("PartDesign::Pocket", "Pocket001")
pocket2.Profile = sketch6
pocket2.setExpression("Length", "Params.pocket2_length")

# Sketch on XY plane
sketch7 = body.newObject("Sketcher::SketchObject", "Sketch006")
sketch7.AttachmentSupport = (doc.getObject("XY_Plane"), [""])
sketch7.MapMode = "FlatFace"
sketch7.AttachmentOffset = App.Placement(App.Vector(0, 0, -49.55), App.Rotation())
sketch7.addGeometry(Part.LineSegment(App.Vector(25, 25, 0), App.Vector(25, 12, 0)), False)
sketch7.addGeometry(Part.LineSegment(App.Vector(25, 12, 0), App.Vector(9, 12, 0)), False)
sketch7.addGeometry(Part.LineSegment(App.Vector(9, 12, 0), App.Vector(9, 25, 0)), False)
sketch7.addGeometry(Part.LineSegment(App.Vector(9, 25, 0), App.Vector(25, 25, 0)), False)
sketch7.addGeometry(Part.LineSegment(App.Vector(7, 11, 0), App.Vector(-10, 11, 0)), False)
sketch7.addGeometry(Part.LineSegment(App.Vector(-10, 11, 0), App.Vector(-10, 28, 0)), False)
sketch7.addGeometry(Part.LineSegment(App.Vector(-10, 28, 0), App.Vector(7, 28, 0)), False)
sketch7.addGeometry(Part.LineSegment(App.Vector(7, 28, 0), App.Vector(7, 11, 0)), False)
sketch7.addConstraint(Sketcher.Constraint("Coincident", 0, 2, 1, 1))
sketch7.addConstraint(Sketcher.Constraint("Coincident", 1, 2, 2, 1))
sketch7.addConstraint(Sketcher.Constraint("Coincident", 2, 2, 3, 1))
sketch7.addConstraint(Sketcher.Constraint("Coincident", 3, 2, 0, 1))
sketch7.addConstraint(Sketcher.Constraint("Coincident", 4, 2, 5, 1))
sketch7.addConstraint(Sketcher.Constraint("Coincident", 5, 2, 6, 1))
sketch7.addConstraint(Sketcher.Constraint("Coincident", 6, 2, 7, 1))
sketch7.addConstraint(Sketcher.Constraint("Coincident", 7, 2, 4, 1))
sketch7.addConstraint(Sketcher.Constraint("Vertical", 0))
sketch7.addConstraint(Sketcher.Constraint("Horizontal", 1))
sketch7.addConstraint(Sketcher.Constraint("Vertical", 2))
sketch7.addConstraint(Sketcher.Constraint("Horizontal", 3))
sketch7.addConstraint(Sketcher.Constraint("Horizontal", 4))
sketch7.addConstraint(Sketcher.Constraint("Vertical", 5))
sketch7.addConstraint(Sketcher.Constraint("Horizontal", 6))
sketch7.addConstraint(Sketcher.Constraint("Vertical", 7))
sketch7.addConstraint(Sketcher.Constraint("DistanceY", 0, 2, 0, 1, 13.5))
sketch7.addConstraint(Sketcher.Constraint("DistanceX", 1, 2, 1, 1, 15.88))
sketch7.addConstraint(Sketcher.Constraint("DistanceY", 5, 1, 5, 2, 17.19))
sketch7.addConstraint(Sketcher.Constraint("DistanceY", -1, 1, 5, 2, 28.1))
sketch7.addConstraint(Sketcher.Constraint("DistanceY", 4, 2, 1, 2, 0.7))
sketch7.addConstraint(Sketcher.Constraint("DistanceX", 4, 2, 4, 1, 16.594))
sketch7.addConstraint(Sketcher.Constraint("DistanceX", 4, 2, 1, 2, 18.86))
sketch7.addConstraint(Sketcher.Constraint("DistanceX", -1, 1, 0, 2, 25.107))
sketch7.setExpression("Constraints[16]", "Params.sketch7_height")
sketch7.setExpression("Constraints[17]", "Params.sketch7_width")
sketch7.setExpression("Constraints[18]", "Params.sketch7_height2")
pocket3 = body.newObject("PartDesign::Pocket", "Pocket002")
pocket3.Profile = sketch7
pocket3.setExpression("Length", "Params.pocket3_length")
pocket3.Reversed = True

doc.recompute()
